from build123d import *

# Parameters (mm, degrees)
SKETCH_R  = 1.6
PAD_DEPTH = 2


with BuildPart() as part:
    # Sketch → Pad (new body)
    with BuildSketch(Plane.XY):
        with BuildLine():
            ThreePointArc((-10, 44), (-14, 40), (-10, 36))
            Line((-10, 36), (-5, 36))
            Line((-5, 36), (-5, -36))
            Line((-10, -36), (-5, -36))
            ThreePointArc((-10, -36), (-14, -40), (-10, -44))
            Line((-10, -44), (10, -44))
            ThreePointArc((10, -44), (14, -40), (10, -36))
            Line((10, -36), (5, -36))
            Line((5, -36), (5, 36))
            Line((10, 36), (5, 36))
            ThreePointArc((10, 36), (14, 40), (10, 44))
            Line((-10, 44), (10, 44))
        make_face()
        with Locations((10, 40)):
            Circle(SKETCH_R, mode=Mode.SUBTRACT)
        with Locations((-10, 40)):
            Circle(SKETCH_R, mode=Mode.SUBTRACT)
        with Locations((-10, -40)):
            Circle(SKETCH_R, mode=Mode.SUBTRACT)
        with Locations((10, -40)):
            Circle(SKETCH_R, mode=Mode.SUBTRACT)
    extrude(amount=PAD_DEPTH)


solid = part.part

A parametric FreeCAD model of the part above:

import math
import FreeCAD as App
import Part
import Sketcher

doc = App.newDocument("Part")
body = doc.addObject("PartDesign::Body", "Body")

# Sketch on XY plane
sketch1 = body.newObject("Sketcher::SketchObject", "Sketch")
sketch1.AttachmentSupport = (doc.getObject("XY_Plane"), [""])
sketch1.MapMode = "FlatFace"
sketch1.addGeometry(Part.ArcOfCircle(Part.Circle(App.Vector(-10, 40, 0), App.Vector(0, 0, 1), 4), math.radians(90), math.radians(270)), False)
sketch1.addGeometry(Part.LineSegment(App.Vector(-10, 36, 0), App.Vector(-5, 36, 0)), False)
sketch1.addGeometry(Part.LineSegment(App.Vector(-5, 36, 0), App.Vector(-5, -36, 0)), False)
sketch1.addGeometry(Part.LineSegment(App.Vector(-5, -36, 0), App.Vector(-10, -36, 0)), False)
sketch1.addGeometry(Part.ArcOfCircle(Part.Circle(App.Vector(-10, -40, 0), App.Vector(0, 0, 1), 4), math.radians(90), math.radians(270)), False)
sketch1.addGeometry(Part.LineSegment(App.Vector(-10, -44, 0), App.Vector(10, -44, 0)), False)
sketch1.addGeometry(Part.ArcOfCircle(Part.Circle(App.Vector(10, -40, 0), App.Vector(0, 0, 1), 4), math.radians(-90), math.radians(90)), False)
sketch1.addGeometry(Part.LineSegment(App.Vector(10, -36, 0), App.Vector(5, -36, 0)), False)
sketch1.addGeometry(Part.LineSegment(App.Vector(5, -36, 0), App.Vector(5, 36, 0)), False)
sketch1.addGeometry(Part.LineSegment(App.Vector(5, 36, 0), App.Vector(10, 36, 0)), False)
sketch1.addGeometry(Part.ArcOfCircle(Part.Circle(App.Vector(10, 40, 0), App.Vector(0, 0, 1), 4), math.radians(-90), math.radians(90)), False)
sketch1.addGeometry(Part.LineSegment(App.Vector(10, 44, 0), App.Vector(-10, 44, 0)), False)
sketch1.addGeometry(Part.Circle(App.Vector(-10, -40, 0), App.Vector(0, 0, 1), 1.6), False)
sketch1.addGeometry(Part.Circle(App.Vector(10, -40, 0), App.Vector(0, 0, 1), 1.6), False)
sketch1.addGeometry(Part.Circle(App.Vector(-10, 40, 0), App.Vector(0, 0, 1), 1.6), False)
sketch1.addGeometry(Part.Circle(App.Vector(10, 40, 0), App.Vector(0, 0, 1), 1.6), False)
sketch1.addConstraint(Sketcher.Constraint("Tangent", 0, 2, 1, 1))
sketch1.addConstraint(Sketcher.Constraint("Coincident", 1, 2, 2, 1))
sketch1.addConstraint(Sketcher.Constraint("Coincident", 2, 2, 3, 1))
sketch1.addConstraint(Sketcher.Constraint("Tangent", 3, 2, 4, 1))
sketch1.addConstraint(Sketcher.Constraint("Tangent", 4, 2, 5, 1))
sketch1.addConstraint(Sketcher.Constraint("Tangent", 5, 2, 6, 1))
sketch1.addConstraint(Sketcher.Constraint("Tangent", 6, 2, 7, 1))
sketch1.addConstraint(Sketcher.Constraint("Coincident", 7, 2, 8, 1))
sketch1.addConstraint(Sketcher.Constraint("Coincident", 8, 2, 9, 1))
sketch1.addConstraint(Sketcher.Constraint("Tangent", 9, 2, 10, 1))
sketch1.addConstraint(Sketcher.Constraint("Tangent", 10, 2, 11, 1))
sketch1.addConstraint(Sketcher.Constraint("Tangent", 11, 2, 0, 1))
sketch1.addConstraint(Sketcher.Constraint("Horizontal", 1))
sketch1.addConstraint(Sketcher.Constraint("Vertical", 2))
sketch1.addConstraint(Sketcher.Constraint("Horizontal", 3))
sketch1.addConstraint(Sketcher.Constraint("Horizontal", 5))
sketch1.addConstraint(Sketcher.Constraint("Horizontal", 7))
sketch1.addConstraint(Sketcher.Constraint("Vertical", 8))
sketch1.addConstraint(Sketcher.Constraint("Horizontal", 9))
sketch1.addConstraint(Sketcher.Constraint("Horizontal", 11))
sketch1.addConstraint(Sketcher.Constraint("Coincident", 12, 3, 4, 3))
sketch1.addConstraint(Sketcher.Constraint("Coincident", 13, 3, 6, 3))
sketch1.addConstraint(Sketcher.Constraint("Coincident", 14, 3, 0, 3))
sketch1.addConstraint(Sketcher.Constraint("Coincident", 15, 3, 10, 3))
sketch1.addConstraint(Sketcher.Constraint("Equal", 0, 4))
sketch1.addConstraint(Sketcher.Constraint("Equal", 4, 6))
sketch1.addConstraint(Sketcher.Constraint("Equal", 6, 10))
sketch1.addConstraint(Sketcher.Constraint("Equal", 12, 13))
sketch1.addConstraint(Sketcher.Constraint("Equal", 13, 14))
sketch1.addConstraint(Sketcher.Constraint("Equal", 14, 15))
sketch1.addConstraint(Sketcher.Constraint("Symmetric", 0, 3, 6, 3, -1, 1))
sketch1.addConstraint(Sketcher.Constraint("Vertical", 0, 3, 4, 3))
sketch1.addConstraint(Sketcher.Constraint("Vertical", 6, 3, 10, 3))
sketch1.addConstraint(Sketcher.Constraint("Equal", 3, 7))
sketch1.addConstraint(Sketcher.Constraint("Radius", 0, 4.0))
sketch1.addConstraint(Sketcher.Constraint("Diameter", 12, 3.2))
sketch1.addConstraint(Sketcher.Constraint("DistanceX", 1, 1, 1, 2, 5.0))
sketch1.addConstraint(Sketcher.Constraint("DistanceX", 5, 1, 5, 2, 20.0))
sketch1.addConstraint(Sketcher.Constraint("DistanceY", 2, 2, 2, 1, 72.0))
pad1 = body.newObject("PartDesign::Pad", "Pad")
pad1.Profile = sketch1
pad1.Length = 2

doc.recompute()
